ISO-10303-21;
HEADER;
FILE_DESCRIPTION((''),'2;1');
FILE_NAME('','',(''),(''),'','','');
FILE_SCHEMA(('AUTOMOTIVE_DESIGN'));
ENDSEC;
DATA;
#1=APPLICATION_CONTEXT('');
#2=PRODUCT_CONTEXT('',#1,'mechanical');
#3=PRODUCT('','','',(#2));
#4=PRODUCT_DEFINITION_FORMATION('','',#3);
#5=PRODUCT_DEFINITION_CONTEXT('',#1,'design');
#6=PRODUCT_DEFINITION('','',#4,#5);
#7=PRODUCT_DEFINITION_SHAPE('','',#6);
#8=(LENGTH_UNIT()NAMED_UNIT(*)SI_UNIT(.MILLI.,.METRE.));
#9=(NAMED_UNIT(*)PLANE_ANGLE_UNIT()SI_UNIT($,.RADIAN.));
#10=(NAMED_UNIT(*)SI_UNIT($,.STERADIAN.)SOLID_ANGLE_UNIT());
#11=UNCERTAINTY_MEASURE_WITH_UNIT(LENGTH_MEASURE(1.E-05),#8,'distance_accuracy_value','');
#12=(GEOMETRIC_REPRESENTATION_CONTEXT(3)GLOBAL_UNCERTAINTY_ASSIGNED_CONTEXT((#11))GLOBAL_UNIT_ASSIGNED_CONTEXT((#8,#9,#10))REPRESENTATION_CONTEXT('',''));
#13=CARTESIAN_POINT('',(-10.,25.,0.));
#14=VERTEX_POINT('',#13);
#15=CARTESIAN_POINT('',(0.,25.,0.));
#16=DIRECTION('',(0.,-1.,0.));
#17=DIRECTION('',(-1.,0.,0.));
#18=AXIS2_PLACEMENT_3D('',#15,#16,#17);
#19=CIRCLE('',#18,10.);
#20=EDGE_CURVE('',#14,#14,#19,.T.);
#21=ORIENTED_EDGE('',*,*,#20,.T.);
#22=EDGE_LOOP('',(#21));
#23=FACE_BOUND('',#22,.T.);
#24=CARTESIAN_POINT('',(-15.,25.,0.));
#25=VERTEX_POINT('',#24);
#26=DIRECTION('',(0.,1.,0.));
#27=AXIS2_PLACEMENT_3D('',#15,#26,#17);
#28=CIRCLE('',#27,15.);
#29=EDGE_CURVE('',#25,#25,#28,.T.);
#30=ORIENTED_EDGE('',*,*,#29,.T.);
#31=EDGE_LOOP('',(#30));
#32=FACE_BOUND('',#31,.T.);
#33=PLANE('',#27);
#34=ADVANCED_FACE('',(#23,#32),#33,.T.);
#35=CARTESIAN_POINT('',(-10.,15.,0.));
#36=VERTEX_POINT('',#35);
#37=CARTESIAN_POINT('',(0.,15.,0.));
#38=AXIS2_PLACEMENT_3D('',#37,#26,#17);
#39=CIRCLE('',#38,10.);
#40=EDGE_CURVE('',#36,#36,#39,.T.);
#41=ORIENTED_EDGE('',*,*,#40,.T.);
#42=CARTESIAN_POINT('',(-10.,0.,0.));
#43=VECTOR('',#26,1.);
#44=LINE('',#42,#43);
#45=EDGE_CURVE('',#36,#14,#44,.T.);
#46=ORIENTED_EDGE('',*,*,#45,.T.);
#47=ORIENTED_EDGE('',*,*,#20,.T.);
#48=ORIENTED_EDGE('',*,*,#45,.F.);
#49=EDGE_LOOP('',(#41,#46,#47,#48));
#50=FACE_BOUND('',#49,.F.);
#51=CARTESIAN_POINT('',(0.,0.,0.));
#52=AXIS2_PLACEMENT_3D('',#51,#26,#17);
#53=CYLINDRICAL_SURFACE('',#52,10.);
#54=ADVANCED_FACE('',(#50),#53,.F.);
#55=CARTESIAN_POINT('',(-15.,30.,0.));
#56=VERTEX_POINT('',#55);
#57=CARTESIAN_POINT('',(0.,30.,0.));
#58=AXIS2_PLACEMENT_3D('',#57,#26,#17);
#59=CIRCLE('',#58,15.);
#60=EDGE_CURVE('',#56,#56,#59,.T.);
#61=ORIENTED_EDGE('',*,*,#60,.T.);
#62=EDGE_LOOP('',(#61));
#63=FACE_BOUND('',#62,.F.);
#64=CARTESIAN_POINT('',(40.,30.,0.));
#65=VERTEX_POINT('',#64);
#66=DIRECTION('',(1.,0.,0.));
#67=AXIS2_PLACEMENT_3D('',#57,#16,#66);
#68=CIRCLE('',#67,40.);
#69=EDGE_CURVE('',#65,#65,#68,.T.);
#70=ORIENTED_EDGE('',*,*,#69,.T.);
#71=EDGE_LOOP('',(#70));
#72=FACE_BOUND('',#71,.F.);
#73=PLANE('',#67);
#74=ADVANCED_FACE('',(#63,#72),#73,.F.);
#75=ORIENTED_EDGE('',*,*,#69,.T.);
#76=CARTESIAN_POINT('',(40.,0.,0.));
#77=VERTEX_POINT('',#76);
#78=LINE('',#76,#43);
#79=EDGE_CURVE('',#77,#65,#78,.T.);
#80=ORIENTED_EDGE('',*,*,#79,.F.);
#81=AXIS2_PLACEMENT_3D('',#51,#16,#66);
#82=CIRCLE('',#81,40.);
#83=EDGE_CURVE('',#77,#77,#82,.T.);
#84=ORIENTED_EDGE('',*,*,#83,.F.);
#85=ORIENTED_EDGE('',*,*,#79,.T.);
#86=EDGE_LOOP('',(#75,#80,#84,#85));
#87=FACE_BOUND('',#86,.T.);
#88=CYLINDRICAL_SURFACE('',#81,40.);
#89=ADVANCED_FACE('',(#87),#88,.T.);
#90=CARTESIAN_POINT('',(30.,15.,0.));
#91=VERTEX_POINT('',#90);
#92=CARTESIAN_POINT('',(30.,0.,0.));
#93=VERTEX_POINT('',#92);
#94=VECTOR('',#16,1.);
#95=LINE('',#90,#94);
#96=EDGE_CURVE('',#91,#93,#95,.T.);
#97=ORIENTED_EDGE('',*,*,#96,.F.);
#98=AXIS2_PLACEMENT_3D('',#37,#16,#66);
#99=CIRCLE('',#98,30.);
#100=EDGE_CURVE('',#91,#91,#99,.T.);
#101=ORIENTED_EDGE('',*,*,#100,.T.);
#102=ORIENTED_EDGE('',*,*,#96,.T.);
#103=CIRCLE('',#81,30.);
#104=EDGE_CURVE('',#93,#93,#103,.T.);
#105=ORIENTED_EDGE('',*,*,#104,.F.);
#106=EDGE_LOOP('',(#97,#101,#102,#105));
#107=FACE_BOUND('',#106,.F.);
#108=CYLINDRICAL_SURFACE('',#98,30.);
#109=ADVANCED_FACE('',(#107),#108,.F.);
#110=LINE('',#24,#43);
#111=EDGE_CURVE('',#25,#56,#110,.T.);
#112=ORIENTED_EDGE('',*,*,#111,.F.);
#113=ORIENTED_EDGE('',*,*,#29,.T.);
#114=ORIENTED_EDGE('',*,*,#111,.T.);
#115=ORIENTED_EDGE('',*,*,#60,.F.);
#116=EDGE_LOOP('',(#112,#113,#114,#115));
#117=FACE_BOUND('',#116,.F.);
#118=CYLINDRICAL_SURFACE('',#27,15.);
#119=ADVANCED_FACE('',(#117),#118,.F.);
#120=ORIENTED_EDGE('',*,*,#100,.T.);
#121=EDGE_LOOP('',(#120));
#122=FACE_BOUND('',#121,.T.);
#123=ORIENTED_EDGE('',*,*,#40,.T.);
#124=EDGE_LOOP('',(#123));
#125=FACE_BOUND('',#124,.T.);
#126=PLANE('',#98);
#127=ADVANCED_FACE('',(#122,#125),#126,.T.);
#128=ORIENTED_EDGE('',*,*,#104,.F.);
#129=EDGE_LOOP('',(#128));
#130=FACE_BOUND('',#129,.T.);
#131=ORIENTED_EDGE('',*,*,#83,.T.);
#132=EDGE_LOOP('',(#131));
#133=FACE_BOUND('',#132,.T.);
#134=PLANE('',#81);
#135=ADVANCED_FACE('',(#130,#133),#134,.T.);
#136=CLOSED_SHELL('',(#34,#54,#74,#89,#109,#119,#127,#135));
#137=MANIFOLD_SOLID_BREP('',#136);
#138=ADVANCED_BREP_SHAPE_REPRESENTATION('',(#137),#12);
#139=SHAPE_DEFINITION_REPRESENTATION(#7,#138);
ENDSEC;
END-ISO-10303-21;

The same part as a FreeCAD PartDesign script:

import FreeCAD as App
import Part
import Sketcher

V = App.Vector

doc = App.newDocument("Part")
body = doc.addObject("PartDesign::Body", "Body")

# Sketch on XZ plane
sketch1 = body.newObject("Sketcher::SketchObject", "Sketch")
sketch1.AttachmentSupport = (doc.getObject("XZ_Plane"), [""])
sketch1.MapMode = "FlatFace"
sketch1.addGeometry(Part.Circle(V(0, 0, 0), V(0, 0, 1), 40), False)
sketch1.addConstraint([
    Sketcher.Constraint("Coincident", 0, 3, -1, 1),
    Sketcher.Constraint("Diameter", 0, 80.0),
])
pad1 = body.newObject("PartDesign::Pad", "Pad")
pad1.Profile = sketch1
pad1.Length = 30
pad1.Reversed = True

# Sketch on XZ plane
sketch2 = body.newObject("Sketcher::SketchObject", "Sketch001")
sketch2.AttachmentSupport = (doc.getObject("XZ_Plane"), [""])
sketch2.MapMode = "FlatFace"
sketch2.addGeometry(Part.Circle(V(0, 0, 0), V(0, 0, 1), 10), False)
sketch2.addConstraint([
    Sketcher.Constraint("Coincident", 0, 3, -1, 1),
    Sketcher.Constraint("Diameter", 0, 20.0),
])
doc.recompute()
hole = body.newObject("PartDesign::Hole", "Hole")
hole.Profile = sketch2
hole.ThreadType = "None"
hole.Diameter = 20
hole.DepthType = "ThroughAll"
hole.HoleCutType = "Counterbore"
hole.HoleCutDiameter = 60
hole.HoleCutDepth = 15

# Sketch on XZ plane
sketch3 = body.newObject("Sketcher::SketchObject", "Sketch002")
sketch3.AttachmentSupport = (doc.getObject("XZ_Plane"), [""])
sketch3.MapMode = "FlatFace"
sketch3.AttachmentOffset = App.Placement(V(0, 0, -30), App.Rotation())
sketch3.addGeometry(Part.Circle(V(0, 0, 0), V(0, 0, 1), 10), False)
sketch3.addConstraint([
    Sketcher.Constraint("Coincident", 0, 3, -1, 1),
    Sketcher.Constraint("Diameter", 0, 20.0),
])
doc.recompute()
hole2 = body.newObject("PartDesign::Hole", "Hole001")
hole2.Profile = sketch3
hole2.ThreadType = "None"
hole2.Diameter = 20
hole2.DepthType = "Dimension"
hole2.Depth = 50
hole2.DrillPoint = "Flat"
hole2.HoleCutType = "Counterbore"
hole2.HoleCutDiameter = 30
hole2.HoleCutDepth = 5
hole2.Reversed = True

doc.recompute()
